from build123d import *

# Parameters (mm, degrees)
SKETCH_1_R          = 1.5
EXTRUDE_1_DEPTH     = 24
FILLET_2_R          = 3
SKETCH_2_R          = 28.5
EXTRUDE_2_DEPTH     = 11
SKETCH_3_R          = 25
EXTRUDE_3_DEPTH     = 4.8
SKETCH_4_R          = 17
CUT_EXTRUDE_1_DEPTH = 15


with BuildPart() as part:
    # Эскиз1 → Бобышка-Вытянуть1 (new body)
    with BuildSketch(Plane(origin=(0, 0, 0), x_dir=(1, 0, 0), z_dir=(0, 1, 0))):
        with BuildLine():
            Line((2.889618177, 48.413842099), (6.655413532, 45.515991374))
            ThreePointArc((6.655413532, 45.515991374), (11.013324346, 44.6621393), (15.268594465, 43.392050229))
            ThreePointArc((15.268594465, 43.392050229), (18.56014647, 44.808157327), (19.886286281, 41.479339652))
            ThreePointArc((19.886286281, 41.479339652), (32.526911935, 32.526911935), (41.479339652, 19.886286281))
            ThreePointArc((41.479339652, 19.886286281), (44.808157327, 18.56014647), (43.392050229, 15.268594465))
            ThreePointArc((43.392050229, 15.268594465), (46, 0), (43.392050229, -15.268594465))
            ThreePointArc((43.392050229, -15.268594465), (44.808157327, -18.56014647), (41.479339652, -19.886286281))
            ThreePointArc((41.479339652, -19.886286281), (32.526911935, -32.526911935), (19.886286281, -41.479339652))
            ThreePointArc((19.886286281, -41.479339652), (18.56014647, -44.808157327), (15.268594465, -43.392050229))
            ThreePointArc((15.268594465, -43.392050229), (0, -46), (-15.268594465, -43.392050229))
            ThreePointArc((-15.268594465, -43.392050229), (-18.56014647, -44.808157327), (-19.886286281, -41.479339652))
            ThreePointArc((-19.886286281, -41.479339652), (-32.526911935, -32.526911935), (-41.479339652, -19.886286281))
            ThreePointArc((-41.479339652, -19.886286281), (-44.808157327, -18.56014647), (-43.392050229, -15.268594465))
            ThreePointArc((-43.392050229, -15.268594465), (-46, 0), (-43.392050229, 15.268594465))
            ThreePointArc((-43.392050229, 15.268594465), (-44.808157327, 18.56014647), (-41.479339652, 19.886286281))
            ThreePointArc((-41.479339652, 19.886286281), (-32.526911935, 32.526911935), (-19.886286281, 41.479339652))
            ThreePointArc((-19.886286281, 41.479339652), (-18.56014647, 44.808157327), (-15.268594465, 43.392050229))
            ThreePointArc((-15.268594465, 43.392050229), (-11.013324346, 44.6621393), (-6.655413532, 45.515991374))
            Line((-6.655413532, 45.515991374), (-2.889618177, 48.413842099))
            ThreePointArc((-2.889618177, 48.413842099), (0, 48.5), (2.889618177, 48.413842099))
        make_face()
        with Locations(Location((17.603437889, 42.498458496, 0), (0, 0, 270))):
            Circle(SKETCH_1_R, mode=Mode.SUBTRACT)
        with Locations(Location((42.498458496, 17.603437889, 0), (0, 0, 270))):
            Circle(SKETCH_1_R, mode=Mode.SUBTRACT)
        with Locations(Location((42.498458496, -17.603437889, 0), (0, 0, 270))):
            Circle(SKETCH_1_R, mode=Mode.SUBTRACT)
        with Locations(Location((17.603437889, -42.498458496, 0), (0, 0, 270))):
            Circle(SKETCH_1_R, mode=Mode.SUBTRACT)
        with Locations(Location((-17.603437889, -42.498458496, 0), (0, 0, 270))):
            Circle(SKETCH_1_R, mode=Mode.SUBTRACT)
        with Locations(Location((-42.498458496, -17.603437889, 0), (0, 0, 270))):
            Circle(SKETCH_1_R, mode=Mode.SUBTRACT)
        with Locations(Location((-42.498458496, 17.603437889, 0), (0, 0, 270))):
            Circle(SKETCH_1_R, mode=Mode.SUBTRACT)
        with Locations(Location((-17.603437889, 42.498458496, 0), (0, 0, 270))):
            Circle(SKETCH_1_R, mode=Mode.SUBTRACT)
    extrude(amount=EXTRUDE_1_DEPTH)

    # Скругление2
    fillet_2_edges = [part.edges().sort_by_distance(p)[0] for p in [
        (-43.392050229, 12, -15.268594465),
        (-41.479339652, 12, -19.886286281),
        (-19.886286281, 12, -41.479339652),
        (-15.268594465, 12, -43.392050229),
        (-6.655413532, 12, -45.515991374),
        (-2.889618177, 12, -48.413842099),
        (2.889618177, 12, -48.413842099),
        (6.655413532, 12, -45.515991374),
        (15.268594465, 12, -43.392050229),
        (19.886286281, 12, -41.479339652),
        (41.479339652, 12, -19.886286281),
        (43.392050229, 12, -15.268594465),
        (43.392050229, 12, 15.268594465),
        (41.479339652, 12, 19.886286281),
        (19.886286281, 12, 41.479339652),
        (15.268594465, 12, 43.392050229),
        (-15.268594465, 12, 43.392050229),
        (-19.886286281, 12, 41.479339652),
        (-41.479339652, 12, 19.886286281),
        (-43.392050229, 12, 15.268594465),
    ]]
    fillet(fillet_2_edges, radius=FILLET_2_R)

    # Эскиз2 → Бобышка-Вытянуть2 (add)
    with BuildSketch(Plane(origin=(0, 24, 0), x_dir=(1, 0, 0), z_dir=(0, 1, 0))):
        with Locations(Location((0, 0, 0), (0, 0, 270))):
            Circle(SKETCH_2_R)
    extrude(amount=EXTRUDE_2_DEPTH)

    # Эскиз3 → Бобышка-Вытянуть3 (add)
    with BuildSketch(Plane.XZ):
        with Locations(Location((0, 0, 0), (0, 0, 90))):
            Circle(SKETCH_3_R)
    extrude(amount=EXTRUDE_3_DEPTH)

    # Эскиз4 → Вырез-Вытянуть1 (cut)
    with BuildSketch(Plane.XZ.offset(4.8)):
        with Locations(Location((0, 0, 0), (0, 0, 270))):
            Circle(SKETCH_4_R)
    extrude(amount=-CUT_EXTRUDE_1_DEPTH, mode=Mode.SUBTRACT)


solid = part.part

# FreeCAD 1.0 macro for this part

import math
import FreeCAD as App
import Part
import Sketcher
from FreeCAD import Vector


def edges_at(feature, points):
    """Names of the edges that pass closest to the given points."""
    edges = feature.Shape.Edges
    near = lambda p: min(range(len(edges)), key=lambda i: edges[i].distToShape(Part.Vertex(*p))[0])
    return sorted({f"Edge{near(p) + 1}" for p in points})

doc = App.newDocument("Part")
params = doc.addObject("Spreadsheet::Sheet", "Params")
for row, (alias, value) in enumerate([
    ("sketch1_diameter", "3 mm"),
    ("sketch1_radius", "46 mm"),
    ("sketch1_radius2", "48.5 mm"),
    ("sketch1_radius3", "2.5 mm"),
    ("pad1_length", "24 mm"),
    ("fillet_radius", "3 mm"),
    ("sketch2_diameter", "57 mm"),
    ("pad2_length", "11 mm"),
    ("sketch3_diameter", "50 mm"),
    ("pad3_length", "4.8 mm"),
    ("sketch4_diameter", "34 mm"),
    ("pocket1_length", "15 mm"),
], start=1):
    params.set(f"A{row}", alias)
    params.set(f"B{row}", "=" + value)
    params.setAlias(f"B{row}", alias)

body = doc.addObject("PartDesign::Body", "Body")

sketch1 = body.newObject("Sketcher::SketchObject", "Sketch")
sketch1.AttachmentSupport = (doc.getObject("XZ_Plane"), [""])
sketch1.MapMode = "FlatFace"
sketch1.addGeometry(Part.LineSegment(Vector(6.7, -45.5, 0), Vector(2.9, -48.4, 0)), False)
sketch1.addGeometry(Part.ArcOfCircle(Part.Circle(Vector(0, 0, 0), Vector(0, 0, 1), 48.5), math.radians(-93.42), math.radians(-86.58)), False)
sketch1.addGeometry(Part.LineSegment(Vector(-2.9, -48.4, 0), Vector(-6.7, -45.5, 0)), False)
sketch1.addGeometry(Part.ArcOfCircle(Part.Circle(Vector(0, 0, 0), Vector(0, 0, 1), 46), math.radians(-109.39), math.radians(-98.32)), False)
sketch1.addGeometry(Part.ArcOfCircle(Part.Circle(Vector(-17.6, -42.5, 0), Vector(0, 0, 1), 2.5), math.radians(156), math.radians(339)), False)
sketch1.addGeometry(Part.ArcOfCircle(Part.Circle(Vector(0, 0, 0), Vector(0, 0, 1), 46), math.radians(-154), math.radians(-116)), False)
sketch1.addGeometry(Part.ArcOfCircle(Part.Circle(Vector(-42.5, -17.6, 0), Vector(0, 0, 1), 2.5), math.radians(111), math.radians(294)), False)
sketch1.addGeometry(Part.ArcOfCircle(Part.Circle(Vector(0, 0, 0), Vector(0, 0, 1), 46), math.radians(161), math.radians(199)), False)
sketch1.addGeometry(Part.ArcOfCircle(Part.Circle(Vector(-42.5, 17.6, 0), Vector(0, 0, 1), 2.5), math.radians(66), math.radians(249)), False)
sketch1.addGeometry(Part.ArcOfCircle(Part.Circle(Vector(0, 0, 0), Vector(0, 0, 1), 46), math.radians(116), math.radians(154)), False)
sketch1.addGeometry(Part.ArcOfCircle(Part.Circle(Vector(-17.6, 42.5, 0), Vector(0, 0, 1), 2.5), math.radians(21), math.radians(204)), False)
sketch1.addGeometry(Part.ArcOfCircle(Part.Circle(Vector(0, 0, 0), Vector(0, 0, 1), 46), math.radians(71), math.radians(109)), False)
sketch1.addGeometry(Part.ArcOfCircle(Part.Circle(Vector(17.6, 42.5, 0), Vector(0, 0, 1), 2.5), math.radians(-24), math.radians(159)), False)
sketch1.addGeometry(Part.ArcOfCircle(Part.Circle(Vector(0, 0, 0), Vector(0, 0, 1), 46), math.radians(26), math.radians(64)), False)
sketch1.addGeometry(Part.ArcOfCircle(Part.Circle(Vector(42.5, 17.6, 0), Vector(0, 0, 1), 2.5), math.radians(-69), math.radians(114)), False)
sketch1.addGeometry(Part.ArcOfCircle(Part.Circle(Vector(0, 0, 0), Vector(0, 0, 1), 46), math.radians(-19), math.radians(19)), False)
sketch1.addGeometry(Part.ArcOfCircle(Part.Circle(Vector(42.5, -17.6, 0), Vector(0, 0, 1), 2.5), math.radians(-114), math.radians(69)), False)
sketch1.addGeometry(Part.ArcOfCircle(Part.Circle(Vector(0, 0, 0), Vector(0, 0, 1), 46), math.radians(-64), math.radians(-26)), False)
sketch1.addGeometry(Part.ArcOfCircle(Part.Circle(Vector(17.6, -42.5, 0), Vector(0, 0, 1), 2.5), math.radians(-159), math.radians(24)), False)
sketch1.addGeometry(Part.ArcOfCircle(Part.Circle(Vector(0, 0, 0), Vector(0, 0, 1), 46), math.radians(-81.68), math.radians(-70.61)), False)
sketch1.addGeometry(Part.Circle(Vector(17.6, 42.5, 0), Vector(0, 0, 1), 1.5), False)
sketch1.addGeometry(Part.Circle(Vector(42.5, 17.6, 0), Vector(0, 0, 1), 1.5), False)
sketch1.addGeometry(Part.Circle(Vector(-17.6, 42.5, 0), Vector(0, 0, 1), 1.5), False)
sketch1.addGeometry(Part.Circle(Vector(-42.5, 17.6, 0), Vector(0, 0, 1), 1.5), False)
sketch1.addGeometry(Part.Circle(Vector(42.5, -17.6, 0), Vector(0, 0, 1), 1.5), False)
sketch1.addGeometry(Part.Circle(Vector(17.6, -42.5, 0), Vector(0, 0, 1), 1.5), False)
sketch1.addGeometry(Part.Circle(Vector(-42.5, -17.6, 0), Vector(0, 0, 1), 1.5), False)
sketch1.addGeometry(Part.Circle(Vector(-17.6, -42.5, 0), Vector(0, 0, 1), 1.5), False)
sketch1.addConstraint(Sketcher.Constraint("Coincident", 0, 2, 1, 2))
sketch1.addConstraint(Sketcher.Constraint("Coincident", 1, 1, 2, 1))
sketch1.addConstraint(Sketcher.Constraint("Coincident", 2, 2, 3, 2))
sketch1.addConstraint(Sketcher.Constraint("Coincident", 3, 1, 4, 2))
sketch1.addConstraint(Sketcher.Constraint("Coincident", 4, 1, 5, 2))
sketch1.addConstraint(Sketcher.Constraint("Coincident", 5, 1, 6, 2))
sketch1.addConstraint(Sketcher.Constraint("Coincident", 6, 1, 7, 2))
sketch1.addConstraint(Sketcher.Constraint("Coincident", 7, 1, 8, 2))
sketch1.addConstraint(Sketcher.Constraint("Coincident", 8, 1, 9, 2))
sketch1.addConstraint(Sketcher.Constraint("Coincident", 9, 1, 10, 2))
sketch1.addConstraint(Sketcher.Constraint("Coincident", 10, 1, 11, 2))
sketch1.addConstraint(Sketcher.Constraint("Coincident", 11, 1, 12, 2))
sketch1.addConstraint(Sketcher.Constraint("Coincident", 12, 1, 13, 2))
sketch1.addConstraint(Sketcher.Constraint("Coincident", 13, 1, 14, 2))
sketch1.addConstraint(Sketcher.Constraint("Coincident", 14, 1, 15, 2))
sketch1.addConstraint(Sketcher.Constraint("Coincident", 15, 1, 16, 2))
sketch1.addConstraint(Sketcher.Constraint("Coincident", 16, 1, 17, 2))
sketch1.addConstraint(Sketcher.Constraint("Coincident", 17, 1, 18, 2))
sketch1.addConstraint(Sketcher.Constraint("Coincident", 18, 1, 19, 2))
sketch1.addConstraint(Sketcher.Constraint("Coincident", 19, 1, 0, 1))
sketch1.addConstraint(Sketcher.Constraint("Coincident", 1, 3, -1, 1))
sketch1.addConstraint(Sketcher.Constraint("Coincident", 3, 3, -1, 1))
sketch1.addConstraint(Sketcher.Constraint("Coincident", 5, 3, -1, 1))
sketch1.addConstraint(Sketcher.Constraint("Coincident", 7, 3, -1, 1))
sketch1.addConstraint(Sketcher.Constraint("Coincident", 9, 3, -1, 1))
sketch1.addConstraint(Sketcher.Constraint("Coincident", 11, 3, -1, 1))
sketch1.addConstraint(Sketcher.Constraint("Coincident", 13, 3, -1, 1))
sketch1.addConstraint(Sketcher.Constraint("Coincident", 15, 3, -1, 1))
sketch1.addConstraint(Sketcher.Constraint("Coincident", 17, 3, -1, 1))
sketch1.addConstraint(Sketcher.Constraint("Coincident", 19, 3, -1, 1))
sketch1.addConstraint(Sketcher.Constraint("Coincident", 20, 3, 12, 3))
sketch1.addConstraint(Sketcher.Constraint("Coincident", 21, 3, 14, 3))
sketch1.addConstraint(Sketcher.Constraint("Coincident", 22, 3, 10, 3))
sketch1.addConstraint(Sketcher.Constraint("Coincident", 23, 3, 8, 3))
sketch1.addConstraint(Sketcher.Constraint("Coincident", 24, 3, 16, 3))
sketch1.addConstraint(Sketcher.Constraint("Coincident", 25, 3, 18, 3))
sketch1.addConstraint(Sketcher.Constraint("Coincident", 26, 3, 6, 3))
sketch1.addConstraint(Sketcher.Constraint("Coincident", 27, 3, 4, 3))
sketch1.addConstraint(Sketcher.Constraint("Equal", 3, 5))
sketch1.addConstraint(Sketcher.Constraint("Equal", 4, 6))
sketch1.addConstraint(Sketcher.Constraint("Equal", 5, 7))
sketch1.addConstraint(Sketcher.Constraint("Equal", 6, 8))
sketch1.addConstraint(Sketcher.Constraint("Equal", 7, 9))
sketch1.addConstraint(Sketcher.Constraint("Equal", 8, 10))
sketch1.addConstraint(Sketcher.Constraint("Equal", 9, 11))
sketch1.addConstraint(Sketcher.Constraint("Equal", 10, 12))
sketch1.addConstraint(Sketcher.Constraint("Equal", 11, 13))
sketch1.addConstraint(Sketcher.Constraint("Equal", 12, 14))
sketch1.addConstraint(Sketcher.Constraint("Equal", 13, 15))
sketch1.addConstraint(Sketcher.Constraint("Equal", 14, 16))
sketch1.addConstraint(Sketcher.Constraint("Equal", 15, 17))
sketch1.addConstraint(Sketcher.Constraint("Equal", 16, 18))
sketch1.addConstraint(Sketcher.Constraint("Equal", 17, 19))
sketch1.addConstraint(Sketcher.Constraint("Equal", 20, 21))
sketch1.addConstraint(Sketcher.Constraint("Equal", 21, 22))
sketch1.addConstraint(Sketcher.Constraint("Equal", 22, 23))
sketch1.addConstraint(Sketcher.Constraint("Equal", 23, 24))
sketch1.addConstraint(Sketcher.Constraint("Equal", 24, 25))
sketch1.addConstraint(Sketcher.Constraint("Equal", 25, 26))
sketch1.addConstraint(Sketcher.Constraint("Equal", 26, 27))
sketch1.addConstraint(Sketcher.Constraint("Symmetric", 4, 3, 12, 3, -1, 1))
sketch1.addConstraint(Sketcher.Constraint("Symmetric", 6, 3, 14, 3, -1, 1))
sketch1.addConstraint(Sketcher.Constraint("Symmetric", 8, 3, 16, 3, -1, 1))
sketch1.addConstraint(Sketcher.Constraint("Symmetric", 10, 3, 18, 3, -1, 1))
sketch1.addConstraint(Sketcher.Constraint("Symmetric", 10, 3, 12, 3, -2))
sketch1.addConstraint(Sketcher.Constraint("Symmetric", 8, 3, 14, 3, -2))
sketch1.addConstraint(Sketcher.Constraint("Horizontal", 0, 2, 1, 1))
sketch1.addConstraint(Sketcher.Constraint("Horizontal", 2, 2, 19, 1))
sketch1.addConstraint(Sketcher.Constraint("Diameter", 20, 3.0))
sketch1.addConstraint(Sketcher.Constraint("Radius", 3, 46.0))
sketch1.addConstraint(Sketcher.Constraint("Radius", 1, 48.5))
sketch1.addConstraint(Sketcher.Constraint("Radius", 4, 2.5))
sketch1.addConstraint(Sketcher.Constraint("DistanceX", 5, 1, 4, 3, 23.875902))
sketch1.addConstraint(Sketcher.Constraint("DistanceY", 8, 3, 9, 1, 23.875902))
sketch1.addConstraint(Sketcher.Constraint("DistanceX", 2, 2, 17, 1, 26.5417))
sketch1.addConstraint(Sketcher.Constraint("Distance", 0, 4.751711))
sketch1.addConstraint(Sketcher.Constraint("DistanceY", 4, 3, -1, 1, 42.498458))
sketch1.addConstraint(Sketcher.Constraint("DistanceX", 6, 3, -1, 1, 42.498458))
sketch1.setExpression("Constraints[68]", "Params.sketch1_diameter")
sketch1.setExpression("Constraints[69]", "Params.sketch1_radius")
sketch1.setExpression("Constraints[70]", "Params.sketch1_radius2")
sketch1.setExpression("Constraints[71]", "Params.sketch1_radius3")
pad1 = body.newObject("PartDesign::Pad", "Pad")
pad1.Profile = sketch1
pad1.setExpression("Length", "Params.pad1_length")
pad1.Reversed = True
doc.recompute()

fillet = body.newObject("PartDesign::Fillet", "Fillet")
fillet.Base = (pad1, edges_at(pad1, [
    (-43.392, 12, -15.269),
    (-41.479, 12, -19.886),
    (-19.886, 12, -41.479),
    (-15.269, 12, -43.392),
    (-6.655, 12, -45.516),
    (-2.89, 12, -48.414),
    (2.89, 12, -48.414),
    (6.655, 12, -45.516),
    (15.269, 12, -43.392),
    (19.886, 12, -41.479),
    (41.479, 12, -19.886),
    (43.392, 12, -15.269),
    (43.392, 12, 15.269),
    (41.479, 12, 19.886),
    (19.886, 12, 41.479),
    (15.269, 12, 43.392),
    (-15.269, 12, 43.392),
    (-19.886, 12, 41.479),
    (-41.479, 12, 19.886),
    (-43.392, 12, 15.269),
]))
fillet.setExpression("Radius", "Params.fillet_radius")

sketch2 = body.newObject("Sketcher::SketchObject", "Sketch001")
sketch2.AttachmentSupport = (doc.getObject("XZ_Plane"), [""])
sketch2.MapMode = "FlatFace"
sketch2.AttachmentOffset = App.Placement(Vector(0, 0, -24), App.Rotation())
sketch2.addGeometry(Part.Circle(Vector(0, 0, 0), Vector(0, 0, 1), 28), False)
sketch2.addConstraint(Sketcher.Constraint("Coincident", 0, 3, -1, 1))
sketch2.addConstraint(Sketcher.Constraint("Diameter", 0, 57.0))
sketch2.setExpression("Constraints[1]", "Params.sketch2_diameter")
pad2 = body.newObject("PartDesign::Pad", "Pad001")
pad2.Profile = sketch2
pad2.setExpression("Length", "Params.pad2_length")
pad2.Reversed = True

sketch3 = body.newObject("Sketcher::SketchObject", "Sketch002")
sketch3.AttachmentSupport = (doc.getObject("XZ_Plane"), [""])
sketch3.MapMode = "FlatFace"
sketch3.addGeometry(Part.Circle(Vector(0, 0, 0), Vector(0, 0, 1), 25), False)
sketch3.addConstraint(Sketcher.Constraint("Coincident", 0, 3, -1, 1))
sketch3.addConstraint(Sketcher.Constraint("Diameter", 0, 50.0))
sketch3.setExpression("Constraints[1]", "Params.sketch3_diameter")
pad3 = body.newObject("PartDesign::Pad", "Pad002")
pad3.Profile = sketch3
pad3.setExpression("Length", "Params.pad3_length")

sketch4 = body.newObject("Sketcher::SketchObject", "Sketch003")
sketch4.AttachmentSupport = (doc.getObject("XZ_Plane"), [""])
sketch4.MapMode = "FlatFace"
sketch4.AttachmentOffset = App.Placement(Vector(0, 0, 4.8), App.Rotation())
sketch4.addGeometry(Part.Circle(Vector(0, 0, 0), Vector(0, 0, 1), 17), False)
sketch4.addConstraint(Sketcher.Constraint("Coincident", 0, 3, -1, 1))
sketch4.addConstraint(Sketcher.Constraint("Diameter", 0, 34.0))
sketch4.setExpression("Constraints[1]", "Params.sketch4_diameter")
pocket1 = body.newObject("PartDesign::Pocket", "Pocket")
pocket1.Profile = sketch4
pocket1.setExpression("Length", "Params.pocket1_length")

doc.recompute()
